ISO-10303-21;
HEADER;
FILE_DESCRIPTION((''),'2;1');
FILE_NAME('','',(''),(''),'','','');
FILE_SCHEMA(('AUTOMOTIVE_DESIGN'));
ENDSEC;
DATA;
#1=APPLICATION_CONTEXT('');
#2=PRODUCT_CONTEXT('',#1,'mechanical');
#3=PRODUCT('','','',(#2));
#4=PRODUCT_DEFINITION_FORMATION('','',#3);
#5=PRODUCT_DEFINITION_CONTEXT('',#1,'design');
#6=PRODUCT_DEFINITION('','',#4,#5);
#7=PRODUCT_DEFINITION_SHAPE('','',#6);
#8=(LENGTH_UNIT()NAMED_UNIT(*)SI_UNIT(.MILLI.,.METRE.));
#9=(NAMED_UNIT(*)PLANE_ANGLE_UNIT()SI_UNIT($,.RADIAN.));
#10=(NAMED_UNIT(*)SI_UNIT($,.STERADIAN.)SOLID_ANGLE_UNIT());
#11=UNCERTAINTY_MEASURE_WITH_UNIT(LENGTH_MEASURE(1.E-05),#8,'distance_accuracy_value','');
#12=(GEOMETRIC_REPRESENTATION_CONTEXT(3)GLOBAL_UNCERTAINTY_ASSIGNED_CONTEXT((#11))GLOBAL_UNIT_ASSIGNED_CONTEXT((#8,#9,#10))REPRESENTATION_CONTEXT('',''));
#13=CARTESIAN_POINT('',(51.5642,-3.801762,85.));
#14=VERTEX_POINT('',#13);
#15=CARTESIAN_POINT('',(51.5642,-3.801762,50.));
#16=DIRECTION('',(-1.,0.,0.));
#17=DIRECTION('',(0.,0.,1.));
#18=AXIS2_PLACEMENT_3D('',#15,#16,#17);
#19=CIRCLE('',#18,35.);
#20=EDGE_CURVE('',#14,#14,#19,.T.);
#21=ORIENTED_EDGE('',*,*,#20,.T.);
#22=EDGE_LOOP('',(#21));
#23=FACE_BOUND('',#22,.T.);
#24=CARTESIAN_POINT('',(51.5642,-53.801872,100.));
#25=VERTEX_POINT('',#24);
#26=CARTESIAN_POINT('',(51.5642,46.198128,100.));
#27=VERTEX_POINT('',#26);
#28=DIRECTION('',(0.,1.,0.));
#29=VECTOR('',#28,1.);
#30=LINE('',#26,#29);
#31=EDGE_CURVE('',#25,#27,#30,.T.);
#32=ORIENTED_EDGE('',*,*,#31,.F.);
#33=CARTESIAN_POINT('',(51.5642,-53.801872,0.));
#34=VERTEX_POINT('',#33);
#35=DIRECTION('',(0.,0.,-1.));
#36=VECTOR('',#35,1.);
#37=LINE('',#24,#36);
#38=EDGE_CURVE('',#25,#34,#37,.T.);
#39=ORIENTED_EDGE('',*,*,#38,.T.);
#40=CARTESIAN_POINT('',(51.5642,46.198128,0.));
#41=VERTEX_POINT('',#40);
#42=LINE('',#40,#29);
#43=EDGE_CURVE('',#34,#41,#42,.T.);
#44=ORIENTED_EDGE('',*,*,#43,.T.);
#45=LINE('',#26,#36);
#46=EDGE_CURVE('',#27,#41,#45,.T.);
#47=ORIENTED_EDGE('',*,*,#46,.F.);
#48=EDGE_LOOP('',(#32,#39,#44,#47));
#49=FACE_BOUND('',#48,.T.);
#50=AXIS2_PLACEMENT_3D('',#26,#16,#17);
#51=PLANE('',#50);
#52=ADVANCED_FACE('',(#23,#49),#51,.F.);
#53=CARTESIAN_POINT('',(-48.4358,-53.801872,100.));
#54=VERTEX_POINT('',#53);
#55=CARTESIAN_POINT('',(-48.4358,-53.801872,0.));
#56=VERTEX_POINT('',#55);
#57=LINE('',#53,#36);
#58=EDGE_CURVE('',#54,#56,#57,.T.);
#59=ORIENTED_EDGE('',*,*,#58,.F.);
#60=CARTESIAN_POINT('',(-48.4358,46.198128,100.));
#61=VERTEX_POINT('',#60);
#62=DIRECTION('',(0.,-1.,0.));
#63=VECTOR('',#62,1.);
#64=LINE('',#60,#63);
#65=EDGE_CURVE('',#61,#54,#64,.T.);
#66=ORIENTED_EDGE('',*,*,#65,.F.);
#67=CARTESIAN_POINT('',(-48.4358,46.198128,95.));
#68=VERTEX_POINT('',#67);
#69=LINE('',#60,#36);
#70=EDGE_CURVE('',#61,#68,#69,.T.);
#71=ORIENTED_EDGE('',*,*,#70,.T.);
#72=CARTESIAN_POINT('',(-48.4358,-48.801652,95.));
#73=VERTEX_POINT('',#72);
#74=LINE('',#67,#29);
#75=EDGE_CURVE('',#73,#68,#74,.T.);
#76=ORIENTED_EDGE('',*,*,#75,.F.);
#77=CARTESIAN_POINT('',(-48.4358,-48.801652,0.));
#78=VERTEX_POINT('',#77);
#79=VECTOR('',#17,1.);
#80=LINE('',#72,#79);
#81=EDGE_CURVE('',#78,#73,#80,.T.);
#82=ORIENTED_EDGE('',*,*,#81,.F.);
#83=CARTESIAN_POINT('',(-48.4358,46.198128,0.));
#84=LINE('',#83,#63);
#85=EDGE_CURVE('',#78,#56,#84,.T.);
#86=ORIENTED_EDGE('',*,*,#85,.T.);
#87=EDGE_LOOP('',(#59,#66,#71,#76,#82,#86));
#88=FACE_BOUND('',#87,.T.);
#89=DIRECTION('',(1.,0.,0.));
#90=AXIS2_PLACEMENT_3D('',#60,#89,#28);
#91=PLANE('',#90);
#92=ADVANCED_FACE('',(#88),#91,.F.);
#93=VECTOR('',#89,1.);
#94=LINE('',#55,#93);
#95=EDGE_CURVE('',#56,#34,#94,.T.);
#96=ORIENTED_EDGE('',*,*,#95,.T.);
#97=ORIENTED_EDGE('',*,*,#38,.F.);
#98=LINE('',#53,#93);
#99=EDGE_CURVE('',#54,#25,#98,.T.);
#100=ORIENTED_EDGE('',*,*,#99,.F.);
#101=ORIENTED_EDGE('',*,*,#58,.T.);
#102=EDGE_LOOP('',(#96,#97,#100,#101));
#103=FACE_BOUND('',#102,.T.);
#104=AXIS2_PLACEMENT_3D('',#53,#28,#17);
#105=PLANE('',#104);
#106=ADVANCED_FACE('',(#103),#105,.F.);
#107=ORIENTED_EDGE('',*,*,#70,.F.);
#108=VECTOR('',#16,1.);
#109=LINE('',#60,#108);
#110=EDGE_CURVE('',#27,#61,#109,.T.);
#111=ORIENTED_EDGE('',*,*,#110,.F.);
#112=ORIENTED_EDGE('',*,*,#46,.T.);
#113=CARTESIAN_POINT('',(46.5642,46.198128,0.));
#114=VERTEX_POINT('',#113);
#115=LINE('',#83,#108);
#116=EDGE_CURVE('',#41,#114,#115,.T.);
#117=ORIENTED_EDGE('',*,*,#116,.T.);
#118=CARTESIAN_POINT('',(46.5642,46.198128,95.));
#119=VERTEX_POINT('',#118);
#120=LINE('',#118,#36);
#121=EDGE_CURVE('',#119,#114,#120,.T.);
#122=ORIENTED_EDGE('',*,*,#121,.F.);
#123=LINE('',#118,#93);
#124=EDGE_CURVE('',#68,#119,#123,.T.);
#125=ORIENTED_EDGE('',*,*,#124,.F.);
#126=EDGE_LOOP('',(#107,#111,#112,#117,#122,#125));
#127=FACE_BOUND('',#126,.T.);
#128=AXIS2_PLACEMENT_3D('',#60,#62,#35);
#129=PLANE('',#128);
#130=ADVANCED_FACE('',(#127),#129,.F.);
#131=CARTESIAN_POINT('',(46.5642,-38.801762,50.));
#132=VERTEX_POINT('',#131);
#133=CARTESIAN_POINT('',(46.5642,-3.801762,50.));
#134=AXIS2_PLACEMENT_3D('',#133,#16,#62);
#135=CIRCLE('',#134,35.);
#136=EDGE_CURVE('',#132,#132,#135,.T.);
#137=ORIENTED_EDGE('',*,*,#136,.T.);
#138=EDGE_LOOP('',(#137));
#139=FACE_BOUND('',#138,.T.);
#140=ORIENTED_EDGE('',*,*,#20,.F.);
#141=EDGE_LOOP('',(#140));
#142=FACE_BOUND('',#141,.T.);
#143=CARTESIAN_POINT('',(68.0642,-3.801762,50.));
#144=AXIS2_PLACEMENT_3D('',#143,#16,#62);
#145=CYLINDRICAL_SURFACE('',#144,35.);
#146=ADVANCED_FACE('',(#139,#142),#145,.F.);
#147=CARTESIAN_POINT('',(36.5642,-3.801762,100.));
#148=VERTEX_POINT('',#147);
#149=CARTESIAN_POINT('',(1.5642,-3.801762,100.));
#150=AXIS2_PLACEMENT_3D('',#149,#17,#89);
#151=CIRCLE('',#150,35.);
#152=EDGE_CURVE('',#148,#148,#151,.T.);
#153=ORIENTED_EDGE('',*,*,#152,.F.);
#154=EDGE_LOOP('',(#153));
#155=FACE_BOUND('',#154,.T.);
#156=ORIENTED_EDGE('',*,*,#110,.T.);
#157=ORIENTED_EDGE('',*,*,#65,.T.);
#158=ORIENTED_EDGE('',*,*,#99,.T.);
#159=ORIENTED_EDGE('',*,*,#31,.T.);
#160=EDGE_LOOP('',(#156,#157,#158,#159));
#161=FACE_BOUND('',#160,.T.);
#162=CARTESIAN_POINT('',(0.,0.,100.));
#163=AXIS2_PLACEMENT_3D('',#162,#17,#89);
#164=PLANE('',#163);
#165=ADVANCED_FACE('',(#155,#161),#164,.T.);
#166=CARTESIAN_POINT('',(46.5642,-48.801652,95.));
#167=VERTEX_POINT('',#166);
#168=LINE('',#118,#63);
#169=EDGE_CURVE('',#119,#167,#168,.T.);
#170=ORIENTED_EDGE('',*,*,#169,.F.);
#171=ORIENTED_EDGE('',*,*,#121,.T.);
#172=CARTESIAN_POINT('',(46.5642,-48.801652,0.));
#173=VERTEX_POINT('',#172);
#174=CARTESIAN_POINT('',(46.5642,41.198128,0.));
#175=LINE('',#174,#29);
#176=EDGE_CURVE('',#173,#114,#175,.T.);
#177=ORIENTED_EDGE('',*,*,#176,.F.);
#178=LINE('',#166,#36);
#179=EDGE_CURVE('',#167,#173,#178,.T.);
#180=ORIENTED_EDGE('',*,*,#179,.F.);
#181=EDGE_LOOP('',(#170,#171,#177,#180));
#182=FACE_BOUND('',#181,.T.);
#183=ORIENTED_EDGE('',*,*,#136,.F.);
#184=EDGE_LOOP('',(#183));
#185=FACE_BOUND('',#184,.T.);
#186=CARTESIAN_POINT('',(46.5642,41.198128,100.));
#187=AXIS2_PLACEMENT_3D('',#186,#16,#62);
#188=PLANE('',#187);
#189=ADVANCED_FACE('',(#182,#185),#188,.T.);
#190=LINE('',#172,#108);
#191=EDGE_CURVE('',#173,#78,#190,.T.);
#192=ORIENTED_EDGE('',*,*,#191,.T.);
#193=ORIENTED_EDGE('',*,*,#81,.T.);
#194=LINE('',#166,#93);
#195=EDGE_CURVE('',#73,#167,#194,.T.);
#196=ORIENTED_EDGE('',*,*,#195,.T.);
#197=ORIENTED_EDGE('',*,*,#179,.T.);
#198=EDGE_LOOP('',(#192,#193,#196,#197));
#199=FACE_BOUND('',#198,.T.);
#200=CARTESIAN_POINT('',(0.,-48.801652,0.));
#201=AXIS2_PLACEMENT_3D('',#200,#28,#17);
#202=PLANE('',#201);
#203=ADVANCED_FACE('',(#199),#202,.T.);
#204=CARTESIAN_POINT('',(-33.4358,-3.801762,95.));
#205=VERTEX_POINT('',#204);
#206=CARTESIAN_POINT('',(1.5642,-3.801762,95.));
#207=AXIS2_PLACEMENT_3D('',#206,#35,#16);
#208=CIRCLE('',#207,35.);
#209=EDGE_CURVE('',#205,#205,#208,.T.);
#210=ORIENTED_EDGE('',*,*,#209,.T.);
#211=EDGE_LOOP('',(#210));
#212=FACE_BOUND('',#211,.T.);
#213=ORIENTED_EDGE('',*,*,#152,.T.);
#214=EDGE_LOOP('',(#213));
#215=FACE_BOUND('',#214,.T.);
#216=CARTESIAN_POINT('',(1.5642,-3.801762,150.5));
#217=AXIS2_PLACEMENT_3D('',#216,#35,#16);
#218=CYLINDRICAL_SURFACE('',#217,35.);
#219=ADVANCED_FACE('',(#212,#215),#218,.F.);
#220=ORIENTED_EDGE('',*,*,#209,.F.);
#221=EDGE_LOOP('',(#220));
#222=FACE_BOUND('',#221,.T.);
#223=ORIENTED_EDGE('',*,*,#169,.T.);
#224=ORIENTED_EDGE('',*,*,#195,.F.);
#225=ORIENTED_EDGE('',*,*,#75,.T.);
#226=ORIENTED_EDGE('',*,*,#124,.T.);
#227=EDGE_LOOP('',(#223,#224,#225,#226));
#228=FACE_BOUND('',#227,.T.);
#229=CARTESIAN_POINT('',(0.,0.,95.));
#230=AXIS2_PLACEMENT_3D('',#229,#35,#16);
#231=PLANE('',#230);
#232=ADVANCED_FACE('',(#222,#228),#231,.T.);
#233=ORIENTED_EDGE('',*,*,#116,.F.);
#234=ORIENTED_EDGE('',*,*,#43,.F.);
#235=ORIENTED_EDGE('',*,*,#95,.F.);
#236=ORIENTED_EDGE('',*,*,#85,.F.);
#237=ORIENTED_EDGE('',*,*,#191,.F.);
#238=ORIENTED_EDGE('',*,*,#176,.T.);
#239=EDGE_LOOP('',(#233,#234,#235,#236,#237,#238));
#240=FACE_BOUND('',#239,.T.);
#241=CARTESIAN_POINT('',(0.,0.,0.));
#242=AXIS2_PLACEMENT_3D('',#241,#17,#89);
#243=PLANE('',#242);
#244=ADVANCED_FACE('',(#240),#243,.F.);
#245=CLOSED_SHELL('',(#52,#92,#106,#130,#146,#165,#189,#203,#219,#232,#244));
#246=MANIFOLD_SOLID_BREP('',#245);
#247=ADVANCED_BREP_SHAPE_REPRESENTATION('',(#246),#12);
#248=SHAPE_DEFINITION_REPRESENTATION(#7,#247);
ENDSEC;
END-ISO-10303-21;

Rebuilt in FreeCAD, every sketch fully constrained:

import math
import FreeCAD as App
import Part
import Sketcher

V = App.Vector
Q = App.Units.Quantity

doc = App.newDocument("Part")
body = doc.addObject("PartDesign::Body", "Body")

# Sketch on XY plane
sketch1 = body.newObject("Sketcher::SketchObject", "Sketch")
sketch1.AttachmentSupport = (doc.getObject("XY_Plane"), [""])
sketch1.MapMode = "FlatFace"
sketch1.addGeometry(Part.LineSegment(V(-48, 46, 0), V(-48, -54, 0)), False)
sketch1.addGeometry(Part.LineSegment(V(-48, -54, 0), V(52, -54, 0)), False)
sketch1.addGeometry(Part.LineSegment(V(52, -54, 0), V(52, 46, 0)), False)
sketch1.addGeometry(Part.LineSegment(V(52, 46, 0), V(-48, 46, 0)), False)
sketch1.addGeometry(Part.LineSegment(V(47, -49, 0), V(-43, -49, 0)), False)
sketch1.addGeometry(Part.LineSegment(V(-43, -49, 0), V(-43, 41, 0)), False)
sketch1.addGeometry(Part.LineSegment(V(-43, 41, 0), V(47, 41, 0)), False)
sketch1.addGeometry(Part.LineSegment(V(47, 41, 0), V(47, -49, 0)), False)
sketch1.addConstraint(Sketcher.Constraint("Coincident", 0, 2, 1, 1))
sketch1.addConstraint(Sketcher.Constraint("Coincident", 1, 2, 2, 1))
sketch1.addConstraint(Sketcher.Constraint("Coincident", 2, 2, 3, 1))
sketch1.addConstraint(Sketcher.Constraint("Coincident", 3, 2, 0, 1))
sketch1.addConstraint(Sketcher.Constraint("Coincident", 4, 2, 5, 1))
sketch1.addConstraint(Sketcher.Constraint("Coincident", 5, 2, 6, 1))
sketch1.addConstraint(Sketcher.Constraint("Coincident", 6, 2, 7, 1))
sketch1.addConstraint(Sketcher.Constraint("Coincident", 7, 2, 4, 1))
sketch1.addConstraint(Sketcher.Constraint("Vertical", 0))
sketch1.addConstraint(Sketcher.Constraint("Horizontal", 1))
sketch1.addConstraint(Sketcher.Constraint("Vertical", 2))
sketch1.addConstraint(Sketcher.Constraint("Horizontal", 3))
sketch1.addConstraint(Sketcher.Constraint("Horizontal", 4))
sketch1.addConstraint(Sketcher.Constraint("Vertical", 5))
sketch1.addConstraint(Sketcher.Constraint("Horizontal", 6))
sketch1.addConstraint(Sketcher.Constraint("Vertical", 7))
sketch1.addConstraint(Sketcher.Constraint("Equal", 3, 0))
sketch1.addConstraint(Sketcher.Constraint("Equal", 6, 5))
sketch1.addConstraint(Sketcher.Constraint("DistanceX", 1, 1, 1, 2, Q("100 mm")))
sketch1.addConstraint(Sketcher.Constraint("DistanceX", 4, 2, 4, 1, Q("90 mm")))
sketch1.addConstraint(Sketcher.Constraint("DistanceX", 0, 2, 4, 2, Q("5 mm")))
sketch1.addConstraint(Sketcher.Constraint("DistanceY", 0, 2, 4, 2, Q("5 mm")))
sketch1.addConstraint(Sketcher.Constraint("DistanceX", 0, 2, -1, 1, Q("48.4358 mm")))
sketch1.addConstraint(Sketcher.Constraint("DistanceY", 0, 2, -1, 1, Q("53.801872 mm")))
pad1 = body.newObject("PartDesign::Pad", "Pad")
pad1.Profile = sketch1
pad1.Length = 100

# Sketch on XY plane
sketch2 = body.newObject("Sketcher::SketchObject", "Sketch001")
sketch2.AttachmentSupport = (doc.getObject("XY_Plane"), [""])
sketch2.MapMode = "FlatFace"
sketch2.AttachmentOffset = App.Placement(V(0, 0, 100), App.Rotation())
sketch2.addGeometry(Part.LineSegment(V(-48, 46, 0), V(-48, -54, 0)), False)
sketch2.addGeometry(Part.LineSegment(V(-48, -54, 0), V(52, -54, 0)), False)
sketch2.addGeometry(Part.LineSegment(V(52, -54, 0), V(52, 46, 0)), False)
sketch2.addGeometry(Part.LineSegment(V(52, 46, 0), V(-48, 46, 0)), False)
sketch2.addConstraint(Sketcher.Constraint("Coincident", 0, 2, 1, 1))
sketch2.addConstraint(Sketcher.Constraint("Coincident", 1, 2, 2, 1))
sketch2.addConstraint(Sketcher.Constraint("Coincident", 2, 2, 3, 1))
sketch2.addConstraint(Sketcher.Constraint("Coincident", 3, 2, 0, 1))
sketch2.addConstraint(Sketcher.Constraint("Vertical", 0))
sketch2.addConstraint(Sketcher.Constraint("Horizontal", 1))
sketch2.addConstraint(Sketcher.Constraint("Vertical", 2))
sketch2.addConstraint(Sketcher.Constraint("Horizontal", 3))
sketch2.addConstraint(Sketcher.Constraint("Equal", 3, 0))
sketch2.addConstraint(Sketcher.Constraint("DistanceX", 1, 1, 1, 2, Q("100 mm")))
sketch2.addConstraint(Sketcher.Constraint("DistanceX", 0, 2, -1, 1, Q("48.4358 mm")))
sketch2.addConstraint(Sketcher.Constraint("DistanceY", 0, 2, -1, 1, Q("53.801872 mm")))
pad2 = body.newObject("PartDesign::Pad", "Pad001")
pad2.Profile = sketch2
pad2.Length = 10
pad2.Reversed = True

# Sketch on XY plane
sketch3 = body.newObject("Sketcher::SketchObject", "Sketch002")
sketch3.AttachmentSupport = (doc.getObject("XY_Plane"), [""])
sketch3.MapMode = "FlatFace"
sketch3.addGeometry(Part.LineSegment(V(47, 46, 0), V(47, -49, 0)), False)
sketch3.addGeometry(Part.LineSegment(V(47, -49, 0), V(-48, -49, 0)), False)
sketch3.addGeometry(Part.LineSegment(V(-48, -49, 0), V(-48, 46, 0)), False)
sketch3.addGeometry(Part.LineSegment(V(-48, 46, 0), V(47, 46, 0)), False)
sketch3.addConstraint(Sketcher.Constraint("Coincident", 0, 2, 1, 1))
sketch3.addConstraint(Sketcher.Constraint("Coincident", 1, 2, 2, 1))
sketch3.addConstraint(Sketcher.Constraint("Coincident", 2, 2, 3, 1))
sketch3.addConstraint(Sketcher.Constraint("Coincident", 3, 2, 0, 1))
sketch3.addConstraint(Sketcher.Constraint("Vertical", 0))
sketch3.addConstraint(Sketcher.Constraint("Horizontal", 1))
sketch3.addConstraint(Sketcher.Constraint("Vertical", 2))
sketch3.addConstraint(Sketcher.Constraint("Horizontal", 3))
sketch3.addConstraint(Sketcher.Constraint("DistanceX", 1, 2, 1, 1, Q("95 mm")))
sketch3.addConstraint(Sketcher.Constraint("DistanceY", 0, 2, 0, 1, Q("94.99978 mm")))
sketch3.addConstraint(Sketcher.Constraint("DistanceX", -1, 1, 0, 2, Q("46.5642 mm")))
sketch3.addConstraint(Sketcher.Constraint("DistanceY", 0, 2, -1, 1, Q("48.801652 mm")))
pocket1 = body.newObject("PartDesign::Pocket", "Pocket")
pocket1.Profile = sketch3
pocket1.Length = 95
pocket1.Reversed = True

# Sketch on XZ plane
sketch4 = body.newObject("Sketcher::SketchObject", "Sketch003")
sketch4.AttachmentSupport = (doc.getObject("XZ_Plane"), [""])
sketch4.MapMode = "FlatFace"
sketch4.AttachmentOffset = App.Placement(V(0, 0, 48.801652), App.Rotation())
sketch4.addGeometry(Part.LineSegment(V(-48, 0, 0), V(-48, 95, 0)), False)
sketch4.addGeometry(Part.LineSegment(V(-48, 95, 0), V(47, 95, 0)), False)
sketch4.addGeometry(Part.LineSegment(V(47, 95, 0), V(47, 0, 0)), False)
sketch4.addGeometry(Part.LineSegment(V(47, 0, 0), V(-48, 0, 0)), False)
sketch4.addConstraint(Sketcher.Constraint("Coincident", 0, 2, 1, 1))
sketch4.addConstraint(Sketcher.Constraint("Coincident", 1, 2, 2, 1))
sketch4.addConstraint(Sketcher.Constraint("Coincident", 2, 2, 3, 1))
sketch4.addConstraint(Sketcher.Constraint("Coincident", 3, 2, 0, 1))
sketch4.addConstraint(Sketcher.Constraint("Vertical", 0))
sketch4.addConstraint(Sketcher.Constraint("Horizontal", 1))
sketch4.addConstraint(Sketcher.Constraint("Vertical", 2))
sketch4.addConstraint(Sketcher.Constraint("Horizontal", 3))
sketch4.addConstraint(Sketcher.Constraint("PointOnObject", 2, 2, -1))
sketch4.addConstraint(Sketcher.Constraint("Equal", 3, 0))
sketch4.addConstraint(Sketcher.Constraint("DistanceX", 1, 1, 1, 2, Q("95 mm")))
sketch4.addConstraint(Sketcher.Constraint("DistanceX", 0, 2, -1, 1, Q("48.4358 mm")))
pocket2 = body.newObject("PartDesign::Pocket", "Pocket001")
pocket2.Profile = sketch4
pocket2.Length = 1
pocket2.Reversed = True

# Sketch on XZ plane
sketch5 = body.newObject("Sketcher::SketchObject", "Sketch004")
sketch5.AttachmentSupport = (doc.getObject("XZ_Plane"), [""])
sketch5.MapMode = "FlatFace"
sketch5.AttachmentOffset = App.Placement(V(0, 0, 49.801652), App.Rotation())
sketch5.addGeometry(Part.LineSegment(V(-48, 0, 0), V(-48, 95, 0)), False)
sketch5.addGeometry(Part.LineSegment(V(-48, 95, 0), V(47, 95, 0)), False)
sketch5.addGeometry(Part.LineSegment(V(47, 95, 0), V(47, 0, 0)), False)
sketch5.addGeometry(Part.LineSegment(V(47, 0, 0), V(-48, 0, 0)), False)
sketch5.addConstraint(Sketcher.Constraint("Coincident", 0, 2, 1, 1))
sketch5.addConstraint(Sketcher.Constraint("Coincident", 1, 2, 2, 1))
sketch5.addConstraint(Sketcher.Constraint("Coincident", 2, 2, 3, 1))
sketch5.addConstraint(Sketcher.Constraint("Coincident", 3, 2, 0, 1))
sketch5.addConstraint(Sketcher.Constraint("Vertical", 0))
sketch5.addConstraint(Sketcher.Constraint("Horizontal", 1))
sketch5.addConstraint(Sketcher.Constraint("Vertical", 2))
sketch5.addConstraint(Sketcher.Constraint("Horizontal", 3))
sketch5.addConstraint(Sketcher.Constraint("PointOnObject", 2, 2, -1))
sketch5.addConstraint(Sketcher.Constraint("Equal", 3, 0))
sketch5.addConstraint(Sketcher.Constraint("DistanceX", 1, 1, 1, 2, Q("95 mm")))
sketch5.addConstraint(Sketcher.Constraint("DistanceX", 0, 2, -1, 1, Q("48.4358 mm")))
pad3 = body.newObject("PartDesign::Pad", "Pad002")
pad3.Profile = sketch5
pad3.Length = 1
pad3.Reversed = True

# Sketch on XY plane
sketch6 = body.newObject("Sketcher::SketchObject", "Sketch005")
sketch6.AttachmentSupport = (doc.getObject("XY_Plane"), [""])
sketch6.MapMode = "FlatFace"
sketch6.AttachmentOffset = App.Placement(V(0, 0, 95), App.Rotation())
sketch6.addGeometry(Part.ArcOfCircle(Part.Circle(V(2, -4, 0), V(0, 0, 1), 35), math.radians(-45), math.radians(135)), False)
sketch6.addGeometry(Part.ArcOfCircle(Part.Circle(V(2, -4, 0), V(0, 0, 1), 35), math.radians(180), math.radians(315)), False)
sketch6.addGeometry(Part.ArcOfCircle(Part.Circle(V(2, -4, 0), V(0, 0, 1), 35), math.radians(135), math.radians(180)), False)
sketch6.addConstraint(Sketcher.Constraint("Tangent", 0, 1, 1, 2))
sketch6.addConstraint(Sketcher.Constraint("Tangent", 1, 1, 2, 2))
sketch6.addConstraint(Sketcher.Constraint("Tangent", 2, 1, 0, 2))
sketch6.addConstraint(Sketcher.Constraint("Horizontal", 2, 3, 1, 1))
sketch6.addConstraint(Sketcher.Constraint("Radius", 0, Q("35 mm")))
sketch6.addConstraint(Sketcher.Constraint("DistanceX", -1, 1, 0, 3, Q("1.5642 mm")))
sketch6.addConstraint(Sketcher.Constraint("DistanceY", 0, 3, -1, 1, Q("3.801762 mm")))
sketch6.addConstraint(Sketcher.Constraint("DistanceY", 0, 1, -1, 1, Q("28.550469 mm")))
sketch6.addConstraint(Sketcher.Constraint("DistanceX", 2, 1, -1, 1, Q("23.184568 mm")))
pocket3 = body.newObject("PartDesign::Pocket", "Pocket002")
pocket3.Profile = sketch6
pocket3.Length = 55.5
pocket3.Reversed = True

# Sketch on YZ plane
sketch7 = body.newObject("Sketcher::SketchObject", "Sketch006")
sketch7.AttachmentSupport = (doc.getObject("YZ_Plane"), [""])
sketch7.MapMode = "FlatFace"
sketch7.AttachmentOffset = App.Placement(V(0, 0, 46.5642), App.Rotation())
sketch7.addGeometry(Part.ArcOfCircle(Part.Circle(V(-4, 50, 0), V(0, 0, 1), 35), math.radians(135), math.radians(315)), False)
sketch7.addGeometry(Part.ArcOfCircle(Part.Circle(V(-4, 50, 0), V(0, 0, 1), 35), math.radians(90), math.radians(135)), False)
sketch7.addGeometry(Part.ArcOfCircle(Part.Circle(V(-4, 50, 0), V(0, 0, 1), 35), math.radians(-45), math.radians(90)), False)
sketch7.addConstraint(Sketcher.Constraint("Tangent", 0, 1, 1, 2))
sketch7.addConstraint(Sketcher.Constraint("Tangent", 1, 1, 2, 2))
sketch7.addConstraint(Sketcher.Constraint("Tangent", 2, 1, 0, 2))
sketch7.addConstraint(Sketcher.Constraint("Vertical", 2, 3, 1, 1))
sketch7.addConstraint(Sketcher.Constraint("Radius", 0, Q("35 mm")))
sketch7.addConstraint(Sketcher.Constraint("DistanceY", -1, 1, 0, 3, Q("50 mm")))
sketch7.addConstraint(Sketcher.Constraint("DistanceX", 0, 3, -1, 1, Q("3.801762 mm")))
sketch7.addConstraint(Sketcher.Constraint("DistanceX", 0, 1, -1, 1, Q("28.550469 mm")))
sketch7.addConstraint(Sketcher.Constraint("DistanceX", -1, 1, 2, 1, Q("20.946945 mm")))
pocket4 = body.newObject("PartDesign::Pocket", "Pocket003")
pocket4.Profile = sketch7
pocket4.Length = 21.5
pocket4.Reversed = True

doc.recompute()
